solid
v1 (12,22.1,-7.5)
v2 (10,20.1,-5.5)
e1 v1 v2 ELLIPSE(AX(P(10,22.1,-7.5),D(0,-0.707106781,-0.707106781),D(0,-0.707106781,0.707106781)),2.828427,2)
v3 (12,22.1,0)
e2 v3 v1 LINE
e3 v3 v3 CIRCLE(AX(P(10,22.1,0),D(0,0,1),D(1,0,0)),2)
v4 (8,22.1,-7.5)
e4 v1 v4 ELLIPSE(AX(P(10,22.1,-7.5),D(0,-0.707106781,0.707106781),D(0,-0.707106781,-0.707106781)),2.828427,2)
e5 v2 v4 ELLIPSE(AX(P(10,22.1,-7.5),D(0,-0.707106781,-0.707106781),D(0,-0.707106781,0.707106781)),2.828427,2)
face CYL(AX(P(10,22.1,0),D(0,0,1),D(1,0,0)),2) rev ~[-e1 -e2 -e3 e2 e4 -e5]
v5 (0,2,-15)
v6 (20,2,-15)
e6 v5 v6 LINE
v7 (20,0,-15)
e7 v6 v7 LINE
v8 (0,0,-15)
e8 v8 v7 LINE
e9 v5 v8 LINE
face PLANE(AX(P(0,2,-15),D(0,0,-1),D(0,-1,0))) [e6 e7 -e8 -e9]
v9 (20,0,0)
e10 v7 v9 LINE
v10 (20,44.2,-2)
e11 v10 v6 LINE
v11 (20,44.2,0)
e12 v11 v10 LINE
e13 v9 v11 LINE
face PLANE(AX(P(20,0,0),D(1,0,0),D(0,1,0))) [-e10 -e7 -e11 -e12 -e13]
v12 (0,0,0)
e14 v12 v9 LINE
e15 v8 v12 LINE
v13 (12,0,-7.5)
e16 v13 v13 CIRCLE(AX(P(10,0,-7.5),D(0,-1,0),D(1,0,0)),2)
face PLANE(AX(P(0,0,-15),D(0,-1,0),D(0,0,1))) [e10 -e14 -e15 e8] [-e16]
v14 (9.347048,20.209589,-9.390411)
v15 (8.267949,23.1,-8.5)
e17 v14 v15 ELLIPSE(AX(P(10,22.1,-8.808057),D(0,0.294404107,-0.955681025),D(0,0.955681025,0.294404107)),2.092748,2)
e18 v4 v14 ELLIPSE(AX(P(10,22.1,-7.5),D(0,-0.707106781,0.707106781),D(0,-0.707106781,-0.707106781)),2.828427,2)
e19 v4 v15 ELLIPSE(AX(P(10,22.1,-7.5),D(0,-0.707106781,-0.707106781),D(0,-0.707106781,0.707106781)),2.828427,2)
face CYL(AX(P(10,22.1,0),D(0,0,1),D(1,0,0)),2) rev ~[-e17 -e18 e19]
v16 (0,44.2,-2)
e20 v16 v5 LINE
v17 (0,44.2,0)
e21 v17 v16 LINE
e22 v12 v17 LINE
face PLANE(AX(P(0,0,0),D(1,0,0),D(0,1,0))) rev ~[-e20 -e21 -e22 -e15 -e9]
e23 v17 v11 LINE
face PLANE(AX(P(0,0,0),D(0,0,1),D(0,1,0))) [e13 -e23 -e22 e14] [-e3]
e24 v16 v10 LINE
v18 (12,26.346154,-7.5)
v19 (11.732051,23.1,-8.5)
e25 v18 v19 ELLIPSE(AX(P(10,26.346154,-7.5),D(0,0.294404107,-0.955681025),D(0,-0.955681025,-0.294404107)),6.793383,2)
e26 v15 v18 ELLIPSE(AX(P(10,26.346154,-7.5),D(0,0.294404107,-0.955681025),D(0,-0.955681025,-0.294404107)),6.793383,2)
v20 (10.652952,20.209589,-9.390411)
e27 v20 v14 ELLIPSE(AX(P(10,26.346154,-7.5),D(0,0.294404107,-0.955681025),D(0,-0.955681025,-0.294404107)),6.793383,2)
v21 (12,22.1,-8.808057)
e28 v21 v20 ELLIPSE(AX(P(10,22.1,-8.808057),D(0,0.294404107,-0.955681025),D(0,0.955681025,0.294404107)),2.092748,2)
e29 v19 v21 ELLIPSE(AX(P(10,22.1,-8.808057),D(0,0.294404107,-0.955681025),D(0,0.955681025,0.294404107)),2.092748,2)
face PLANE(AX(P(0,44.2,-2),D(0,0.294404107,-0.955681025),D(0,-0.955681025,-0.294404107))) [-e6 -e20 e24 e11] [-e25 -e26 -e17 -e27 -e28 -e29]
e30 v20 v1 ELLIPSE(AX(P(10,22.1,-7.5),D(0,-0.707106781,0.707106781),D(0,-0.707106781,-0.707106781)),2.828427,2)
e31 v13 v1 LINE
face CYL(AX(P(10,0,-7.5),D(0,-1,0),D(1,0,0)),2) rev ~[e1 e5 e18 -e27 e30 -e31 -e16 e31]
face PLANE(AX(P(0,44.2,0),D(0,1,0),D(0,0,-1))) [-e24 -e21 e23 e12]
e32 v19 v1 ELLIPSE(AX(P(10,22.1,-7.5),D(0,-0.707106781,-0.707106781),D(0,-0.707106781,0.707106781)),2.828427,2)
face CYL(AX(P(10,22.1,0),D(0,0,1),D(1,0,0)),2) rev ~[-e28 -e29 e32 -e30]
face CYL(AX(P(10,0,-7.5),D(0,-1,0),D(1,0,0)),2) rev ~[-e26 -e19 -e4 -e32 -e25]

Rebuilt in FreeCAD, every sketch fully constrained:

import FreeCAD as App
import Part
import Sketcher
from FreeCAD import Vector


def add_polygon(sketch, points):
    """Adds a closed chain of lines whose ends are joined by coincident constraints."""
    first, n = sketch.GeometryCount, len(points)
    for a, b in zip(points, points[1:] + points[:1]):
        sketch.addGeometry(Part.LineSegment(App.Vector(*a, 0), App.Vector(*b, 0)), False)
    for i in range(n):
        sketch.addConstraint(Sketcher.Constraint("Coincident", first + i, 2, first + (i + 1) % n, 1))

doc = App.newDocument("Part")
params = doc.addObject("Spreadsheet::Sheet", "Params")
for row, (alias, value) in enumerate([
    ("sketch1_width", "2 mm"),
    ("sketch1_height", "15 mm"),
    ("sketch1_width2", "44.2 mm"),
    ("pad1_length", "20 mm"),
    ("sketch2_diameter", "4 mm"),
    ("sketch3_diameter", "4 mm"),
], start=1):
    params.set(f"A{row}", alias)
    params.set(f"B{row}", "=" + value)
    params.setAlias(f"B{row}", alias)

body = doc.addObject("PartDesign::Body", "Body")

# Sketch on YZ plane
sketch1 = body.newObject("Sketcher::SketchObject", "Sketch")
sketch1.AttachmentSupport = (doc.getObject("YZ_Plane"), [""])
sketch1.MapMode = "FlatFace"
add_polygon(sketch1, [(44.2, 0), (0, 0), (0, -15), (2, -15), (44.2, -2)])  # lines 0-4
sketch1.addConstraint(Sketcher.Constraint("Horizontal", 0))
sketch1.addConstraint(Sketcher.Constraint("Vertical", 1))
sketch1.addConstraint(Sketcher.Constraint("Horizontal", 2))
sketch1.addConstraint(Sketcher.Constraint("Vertical", 4))
sketch1.addConstraint(Sketcher.Constraint("Coincident", 0, 2, -1, 1))
sketch1.addConstraint(Sketcher.Constraint("Equal", 2, 4))
sketch1.addConstraint(Sketcher.Constraint("DistanceX", 2, 1, 2, 2, 2.0))
sketch1.addConstraint(Sketcher.Constraint("DistanceY", 1, 2, 1, 1, 15.0))
sketch1.addConstraint(Sketcher.Constraint("DistanceX", 0, 2, 0, 1, 44.2))
sketch1.setExpression("Constraints[11]", "Params.sketch1_width")
sketch1.setExpression("Constraints[12]", "Params.sketch1_height")
sketch1.setExpression("Constraints[13]", "Params.sketch1_width2")
pad1 = body.newObject("PartDesign::Pad", "Pad")
pad1.Profile = sketch1
pad1.setExpression("Length", "Params.pad1_length")

# Sketch on XZ plane
sketch2 = body.newObject("Sketcher::SketchObject", "Sketch001")
sketch2.AttachmentSupport = (doc.getObject("XZ_Plane"), [""])
sketch2.MapMode = "FlatFace"
sketch2.addGeometry(Part.Circle(Vector(10, -7.5, 0), Vector(0, 0, 1), 2), False)
sketch2.addConstraint(Sketcher.Constraint("Diameter", 0, 4.0))
sketch2.addConstraint(Sketcher.Constraint("DistanceX", -1, 1, 0, 3, 10.0))
sketch2.addConstraint(Sketcher.Constraint("DistanceY", 0, 3, -1, 1, 7.5))
sketch2.setExpression("Constraints[0]", "Params.sketch2_diameter")
pocket1 = body.newObject("PartDesign::Pocket", "Pocket")
pocket1.Profile = sketch2
pocket1.Type = "ThroughAll"

# Sketch on XY plane
sketch3 = body.newObject("Sketcher::SketchObject", "Sketch002")
sketch3.AttachmentSupport = (doc.getObject("XY_Plane"), [""])
sketch3.MapMode = "FlatFace"
sketch3.addGeometry(Part.Circle(Vector(10, 22.1, 0), Vector(0, 0, 1), 2), False)
sketch3.addConstraint(Sketcher.Constraint("Diameter", 0, 4.0))
sketch3.addConstraint(Sketcher.Constraint("DistanceX", -1, 1, 0, 3, 10.0))
sketch3.addConstraint(Sketcher.Constraint("DistanceY", -1, 1, 0, 3, 22.1))
sketch3.setExpression("Constraints[0]", "Params.sketch3_diameter")
pocket2 = body.newObject("PartDesign::Pocket", "Pocket001")
pocket2.Profile = sketch3
pocket2.Type = "ThroughAll"

doc.recompute()
